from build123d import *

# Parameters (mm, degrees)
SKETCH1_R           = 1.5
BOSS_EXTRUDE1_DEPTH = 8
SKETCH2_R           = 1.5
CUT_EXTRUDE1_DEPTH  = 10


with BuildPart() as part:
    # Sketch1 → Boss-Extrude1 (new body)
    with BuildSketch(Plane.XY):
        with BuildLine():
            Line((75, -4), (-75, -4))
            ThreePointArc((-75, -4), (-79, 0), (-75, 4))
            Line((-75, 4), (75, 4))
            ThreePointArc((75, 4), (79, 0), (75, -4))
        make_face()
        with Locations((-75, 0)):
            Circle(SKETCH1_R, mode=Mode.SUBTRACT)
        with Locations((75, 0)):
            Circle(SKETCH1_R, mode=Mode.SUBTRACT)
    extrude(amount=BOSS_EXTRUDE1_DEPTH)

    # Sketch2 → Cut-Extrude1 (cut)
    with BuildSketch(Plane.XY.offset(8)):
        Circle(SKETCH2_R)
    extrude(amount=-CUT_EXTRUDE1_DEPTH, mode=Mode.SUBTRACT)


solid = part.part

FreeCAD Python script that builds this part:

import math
import FreeCAD as App
import Part
import Sketcher
Q = App.Units.Quantity

doc = App.newDocument("Part")
params = doc.addObject("Spreadsheet::Sheet", "Params")
for row, (alias, value) in enumerate([
    ("sketch1_diameter", "3 mm"),
    ("sketch1_radius", "4 mm"),
    ("sketch1_width", "150 mm"),
    ("pad1_length", "8 mm"),
    ("sketch2_diameter", "3 mm"),
    ("pocket1_length", "10 mm"),
], start=1):
    params.set(f"A{row}", alias)
    params.set(f"B{row}", "=" + value)
    params.setAlias(f"B{row}", alias)

body = doc.addObject("PartDesign::Body", "Body")

# Sketch on XY plane
sketch1 = body.newObject("Sketcher::SketchObject", "Sketch")
sketch1.AttachmentSupport = (doc.getObject("XY_Plane"), [""])
sketch1.MapMode = "FlatFace"
sketch1.addGeometry([
    Part.LineSegment(App.Vector(-75, -4, 0), App.Vector(75, -4, 0)),  # 0
    Part.ArcOfCircle(Part.Circle(App.Vector(75, 0, 0), App.Vector(0, 0, 1), 4), math.radians(-90), math.radians(90)),  # 1
    Part.LineSegment(App.Vector(75, 4, 0), App.Vector(-75, 4, 0)),  # 2
    Part.ArcOfCircle(Part.Circle(App.Vector(-75, 0, 0), App.Vector(0, 0, 1), 4), math.radians(90), math.radians(270)),  # 3
    Part.Circle(App.Vector(75, 0, 0), App.Vector(0, 0, 1), 1.5),  # 4
    Part.Circle(App.Vector(-75, 0, 0), App.Vector(0, 0, 1), 1.5),  # 5
], False)
sketch1.addConstraint([
    Sketcher.Constraint("Tangent", 0, 2, 1, 1),
    Sketcher.Constraint("Tangent", 1, 2, 2, 1),
    Sketcher.Constraint("Tangent", 2, 2, 3, 1),
    Sketcher.Constraint("Tangent", 3, 2, 0, 1),
    Sketcher.Constraint("Horizontal", 0),
    Sketcher.Constraint("Horizontal", 2),
    Sketcher.Constraint("Coincident", 4, 3, 1, 3),
    Sketcher.Constraint("Coincident", 5, 3, 3, 3),
    Sketcher.Constraint("Equal", 4, 5),
    Sketcher.Constraint("Symmetric", 1, 3, 3, 3, -1, 1),
    Sketcher.Constraint("Diameter", 4, Q("3 mm")),
    Sketcher.Constraint("Radius", 1, Q("4 mm")),
    Sketcher.Constraint("DistanceX", 0, 1, 0, 2, Q("150 mm")),
])
sketch1.setExpression("Constraints[10]", "Params.sketch1_diameter")
sketch1.setExpression("Constraints[11]", "Params.sketch1_radius")
sketch1.setExpression("Constraints[12]", "Params.sketch1_width")
pad1 = body.newObject("PartDesign::Pad", "Pad")
pad1.Profile = sketch1
pad1.setExpression("Length", "Params.pad1_length")

# Sketch on XY plane
sketch2 = body.newObject("Sketcher::SketchObject", "Sketch001")
sketch2.AttachmentSupport = (doc.getObject("XY_Plane"), [""])
sketch2.MapMode = "FlatFace"
sketch2.AttachmentOffset = App.Placement(App.Vector(0, 0, 8), App.Rotation())
sketch2.addGeometry(Part.Circle(App.Vector(0, 0, 0), App.Vector(0, 0, 1), 1.5), False)
sketch2.addConstraint([
    Sketcher.Constraint("Coincident", 0, 3, -1, 1),
    Sketcher.Constraint("Diameter", 0, Q("3 mm")),
])
sketch2.setExpression("Constraints[1]", "Params.sketch2_diameter")
pocket1 = body.newObject("PartDesign::Pocket", "Pocket")
pocket1.Profile = sketch2
pocket1.setExpression("Length", "Params.pocket1_length")

doc.recompute()
